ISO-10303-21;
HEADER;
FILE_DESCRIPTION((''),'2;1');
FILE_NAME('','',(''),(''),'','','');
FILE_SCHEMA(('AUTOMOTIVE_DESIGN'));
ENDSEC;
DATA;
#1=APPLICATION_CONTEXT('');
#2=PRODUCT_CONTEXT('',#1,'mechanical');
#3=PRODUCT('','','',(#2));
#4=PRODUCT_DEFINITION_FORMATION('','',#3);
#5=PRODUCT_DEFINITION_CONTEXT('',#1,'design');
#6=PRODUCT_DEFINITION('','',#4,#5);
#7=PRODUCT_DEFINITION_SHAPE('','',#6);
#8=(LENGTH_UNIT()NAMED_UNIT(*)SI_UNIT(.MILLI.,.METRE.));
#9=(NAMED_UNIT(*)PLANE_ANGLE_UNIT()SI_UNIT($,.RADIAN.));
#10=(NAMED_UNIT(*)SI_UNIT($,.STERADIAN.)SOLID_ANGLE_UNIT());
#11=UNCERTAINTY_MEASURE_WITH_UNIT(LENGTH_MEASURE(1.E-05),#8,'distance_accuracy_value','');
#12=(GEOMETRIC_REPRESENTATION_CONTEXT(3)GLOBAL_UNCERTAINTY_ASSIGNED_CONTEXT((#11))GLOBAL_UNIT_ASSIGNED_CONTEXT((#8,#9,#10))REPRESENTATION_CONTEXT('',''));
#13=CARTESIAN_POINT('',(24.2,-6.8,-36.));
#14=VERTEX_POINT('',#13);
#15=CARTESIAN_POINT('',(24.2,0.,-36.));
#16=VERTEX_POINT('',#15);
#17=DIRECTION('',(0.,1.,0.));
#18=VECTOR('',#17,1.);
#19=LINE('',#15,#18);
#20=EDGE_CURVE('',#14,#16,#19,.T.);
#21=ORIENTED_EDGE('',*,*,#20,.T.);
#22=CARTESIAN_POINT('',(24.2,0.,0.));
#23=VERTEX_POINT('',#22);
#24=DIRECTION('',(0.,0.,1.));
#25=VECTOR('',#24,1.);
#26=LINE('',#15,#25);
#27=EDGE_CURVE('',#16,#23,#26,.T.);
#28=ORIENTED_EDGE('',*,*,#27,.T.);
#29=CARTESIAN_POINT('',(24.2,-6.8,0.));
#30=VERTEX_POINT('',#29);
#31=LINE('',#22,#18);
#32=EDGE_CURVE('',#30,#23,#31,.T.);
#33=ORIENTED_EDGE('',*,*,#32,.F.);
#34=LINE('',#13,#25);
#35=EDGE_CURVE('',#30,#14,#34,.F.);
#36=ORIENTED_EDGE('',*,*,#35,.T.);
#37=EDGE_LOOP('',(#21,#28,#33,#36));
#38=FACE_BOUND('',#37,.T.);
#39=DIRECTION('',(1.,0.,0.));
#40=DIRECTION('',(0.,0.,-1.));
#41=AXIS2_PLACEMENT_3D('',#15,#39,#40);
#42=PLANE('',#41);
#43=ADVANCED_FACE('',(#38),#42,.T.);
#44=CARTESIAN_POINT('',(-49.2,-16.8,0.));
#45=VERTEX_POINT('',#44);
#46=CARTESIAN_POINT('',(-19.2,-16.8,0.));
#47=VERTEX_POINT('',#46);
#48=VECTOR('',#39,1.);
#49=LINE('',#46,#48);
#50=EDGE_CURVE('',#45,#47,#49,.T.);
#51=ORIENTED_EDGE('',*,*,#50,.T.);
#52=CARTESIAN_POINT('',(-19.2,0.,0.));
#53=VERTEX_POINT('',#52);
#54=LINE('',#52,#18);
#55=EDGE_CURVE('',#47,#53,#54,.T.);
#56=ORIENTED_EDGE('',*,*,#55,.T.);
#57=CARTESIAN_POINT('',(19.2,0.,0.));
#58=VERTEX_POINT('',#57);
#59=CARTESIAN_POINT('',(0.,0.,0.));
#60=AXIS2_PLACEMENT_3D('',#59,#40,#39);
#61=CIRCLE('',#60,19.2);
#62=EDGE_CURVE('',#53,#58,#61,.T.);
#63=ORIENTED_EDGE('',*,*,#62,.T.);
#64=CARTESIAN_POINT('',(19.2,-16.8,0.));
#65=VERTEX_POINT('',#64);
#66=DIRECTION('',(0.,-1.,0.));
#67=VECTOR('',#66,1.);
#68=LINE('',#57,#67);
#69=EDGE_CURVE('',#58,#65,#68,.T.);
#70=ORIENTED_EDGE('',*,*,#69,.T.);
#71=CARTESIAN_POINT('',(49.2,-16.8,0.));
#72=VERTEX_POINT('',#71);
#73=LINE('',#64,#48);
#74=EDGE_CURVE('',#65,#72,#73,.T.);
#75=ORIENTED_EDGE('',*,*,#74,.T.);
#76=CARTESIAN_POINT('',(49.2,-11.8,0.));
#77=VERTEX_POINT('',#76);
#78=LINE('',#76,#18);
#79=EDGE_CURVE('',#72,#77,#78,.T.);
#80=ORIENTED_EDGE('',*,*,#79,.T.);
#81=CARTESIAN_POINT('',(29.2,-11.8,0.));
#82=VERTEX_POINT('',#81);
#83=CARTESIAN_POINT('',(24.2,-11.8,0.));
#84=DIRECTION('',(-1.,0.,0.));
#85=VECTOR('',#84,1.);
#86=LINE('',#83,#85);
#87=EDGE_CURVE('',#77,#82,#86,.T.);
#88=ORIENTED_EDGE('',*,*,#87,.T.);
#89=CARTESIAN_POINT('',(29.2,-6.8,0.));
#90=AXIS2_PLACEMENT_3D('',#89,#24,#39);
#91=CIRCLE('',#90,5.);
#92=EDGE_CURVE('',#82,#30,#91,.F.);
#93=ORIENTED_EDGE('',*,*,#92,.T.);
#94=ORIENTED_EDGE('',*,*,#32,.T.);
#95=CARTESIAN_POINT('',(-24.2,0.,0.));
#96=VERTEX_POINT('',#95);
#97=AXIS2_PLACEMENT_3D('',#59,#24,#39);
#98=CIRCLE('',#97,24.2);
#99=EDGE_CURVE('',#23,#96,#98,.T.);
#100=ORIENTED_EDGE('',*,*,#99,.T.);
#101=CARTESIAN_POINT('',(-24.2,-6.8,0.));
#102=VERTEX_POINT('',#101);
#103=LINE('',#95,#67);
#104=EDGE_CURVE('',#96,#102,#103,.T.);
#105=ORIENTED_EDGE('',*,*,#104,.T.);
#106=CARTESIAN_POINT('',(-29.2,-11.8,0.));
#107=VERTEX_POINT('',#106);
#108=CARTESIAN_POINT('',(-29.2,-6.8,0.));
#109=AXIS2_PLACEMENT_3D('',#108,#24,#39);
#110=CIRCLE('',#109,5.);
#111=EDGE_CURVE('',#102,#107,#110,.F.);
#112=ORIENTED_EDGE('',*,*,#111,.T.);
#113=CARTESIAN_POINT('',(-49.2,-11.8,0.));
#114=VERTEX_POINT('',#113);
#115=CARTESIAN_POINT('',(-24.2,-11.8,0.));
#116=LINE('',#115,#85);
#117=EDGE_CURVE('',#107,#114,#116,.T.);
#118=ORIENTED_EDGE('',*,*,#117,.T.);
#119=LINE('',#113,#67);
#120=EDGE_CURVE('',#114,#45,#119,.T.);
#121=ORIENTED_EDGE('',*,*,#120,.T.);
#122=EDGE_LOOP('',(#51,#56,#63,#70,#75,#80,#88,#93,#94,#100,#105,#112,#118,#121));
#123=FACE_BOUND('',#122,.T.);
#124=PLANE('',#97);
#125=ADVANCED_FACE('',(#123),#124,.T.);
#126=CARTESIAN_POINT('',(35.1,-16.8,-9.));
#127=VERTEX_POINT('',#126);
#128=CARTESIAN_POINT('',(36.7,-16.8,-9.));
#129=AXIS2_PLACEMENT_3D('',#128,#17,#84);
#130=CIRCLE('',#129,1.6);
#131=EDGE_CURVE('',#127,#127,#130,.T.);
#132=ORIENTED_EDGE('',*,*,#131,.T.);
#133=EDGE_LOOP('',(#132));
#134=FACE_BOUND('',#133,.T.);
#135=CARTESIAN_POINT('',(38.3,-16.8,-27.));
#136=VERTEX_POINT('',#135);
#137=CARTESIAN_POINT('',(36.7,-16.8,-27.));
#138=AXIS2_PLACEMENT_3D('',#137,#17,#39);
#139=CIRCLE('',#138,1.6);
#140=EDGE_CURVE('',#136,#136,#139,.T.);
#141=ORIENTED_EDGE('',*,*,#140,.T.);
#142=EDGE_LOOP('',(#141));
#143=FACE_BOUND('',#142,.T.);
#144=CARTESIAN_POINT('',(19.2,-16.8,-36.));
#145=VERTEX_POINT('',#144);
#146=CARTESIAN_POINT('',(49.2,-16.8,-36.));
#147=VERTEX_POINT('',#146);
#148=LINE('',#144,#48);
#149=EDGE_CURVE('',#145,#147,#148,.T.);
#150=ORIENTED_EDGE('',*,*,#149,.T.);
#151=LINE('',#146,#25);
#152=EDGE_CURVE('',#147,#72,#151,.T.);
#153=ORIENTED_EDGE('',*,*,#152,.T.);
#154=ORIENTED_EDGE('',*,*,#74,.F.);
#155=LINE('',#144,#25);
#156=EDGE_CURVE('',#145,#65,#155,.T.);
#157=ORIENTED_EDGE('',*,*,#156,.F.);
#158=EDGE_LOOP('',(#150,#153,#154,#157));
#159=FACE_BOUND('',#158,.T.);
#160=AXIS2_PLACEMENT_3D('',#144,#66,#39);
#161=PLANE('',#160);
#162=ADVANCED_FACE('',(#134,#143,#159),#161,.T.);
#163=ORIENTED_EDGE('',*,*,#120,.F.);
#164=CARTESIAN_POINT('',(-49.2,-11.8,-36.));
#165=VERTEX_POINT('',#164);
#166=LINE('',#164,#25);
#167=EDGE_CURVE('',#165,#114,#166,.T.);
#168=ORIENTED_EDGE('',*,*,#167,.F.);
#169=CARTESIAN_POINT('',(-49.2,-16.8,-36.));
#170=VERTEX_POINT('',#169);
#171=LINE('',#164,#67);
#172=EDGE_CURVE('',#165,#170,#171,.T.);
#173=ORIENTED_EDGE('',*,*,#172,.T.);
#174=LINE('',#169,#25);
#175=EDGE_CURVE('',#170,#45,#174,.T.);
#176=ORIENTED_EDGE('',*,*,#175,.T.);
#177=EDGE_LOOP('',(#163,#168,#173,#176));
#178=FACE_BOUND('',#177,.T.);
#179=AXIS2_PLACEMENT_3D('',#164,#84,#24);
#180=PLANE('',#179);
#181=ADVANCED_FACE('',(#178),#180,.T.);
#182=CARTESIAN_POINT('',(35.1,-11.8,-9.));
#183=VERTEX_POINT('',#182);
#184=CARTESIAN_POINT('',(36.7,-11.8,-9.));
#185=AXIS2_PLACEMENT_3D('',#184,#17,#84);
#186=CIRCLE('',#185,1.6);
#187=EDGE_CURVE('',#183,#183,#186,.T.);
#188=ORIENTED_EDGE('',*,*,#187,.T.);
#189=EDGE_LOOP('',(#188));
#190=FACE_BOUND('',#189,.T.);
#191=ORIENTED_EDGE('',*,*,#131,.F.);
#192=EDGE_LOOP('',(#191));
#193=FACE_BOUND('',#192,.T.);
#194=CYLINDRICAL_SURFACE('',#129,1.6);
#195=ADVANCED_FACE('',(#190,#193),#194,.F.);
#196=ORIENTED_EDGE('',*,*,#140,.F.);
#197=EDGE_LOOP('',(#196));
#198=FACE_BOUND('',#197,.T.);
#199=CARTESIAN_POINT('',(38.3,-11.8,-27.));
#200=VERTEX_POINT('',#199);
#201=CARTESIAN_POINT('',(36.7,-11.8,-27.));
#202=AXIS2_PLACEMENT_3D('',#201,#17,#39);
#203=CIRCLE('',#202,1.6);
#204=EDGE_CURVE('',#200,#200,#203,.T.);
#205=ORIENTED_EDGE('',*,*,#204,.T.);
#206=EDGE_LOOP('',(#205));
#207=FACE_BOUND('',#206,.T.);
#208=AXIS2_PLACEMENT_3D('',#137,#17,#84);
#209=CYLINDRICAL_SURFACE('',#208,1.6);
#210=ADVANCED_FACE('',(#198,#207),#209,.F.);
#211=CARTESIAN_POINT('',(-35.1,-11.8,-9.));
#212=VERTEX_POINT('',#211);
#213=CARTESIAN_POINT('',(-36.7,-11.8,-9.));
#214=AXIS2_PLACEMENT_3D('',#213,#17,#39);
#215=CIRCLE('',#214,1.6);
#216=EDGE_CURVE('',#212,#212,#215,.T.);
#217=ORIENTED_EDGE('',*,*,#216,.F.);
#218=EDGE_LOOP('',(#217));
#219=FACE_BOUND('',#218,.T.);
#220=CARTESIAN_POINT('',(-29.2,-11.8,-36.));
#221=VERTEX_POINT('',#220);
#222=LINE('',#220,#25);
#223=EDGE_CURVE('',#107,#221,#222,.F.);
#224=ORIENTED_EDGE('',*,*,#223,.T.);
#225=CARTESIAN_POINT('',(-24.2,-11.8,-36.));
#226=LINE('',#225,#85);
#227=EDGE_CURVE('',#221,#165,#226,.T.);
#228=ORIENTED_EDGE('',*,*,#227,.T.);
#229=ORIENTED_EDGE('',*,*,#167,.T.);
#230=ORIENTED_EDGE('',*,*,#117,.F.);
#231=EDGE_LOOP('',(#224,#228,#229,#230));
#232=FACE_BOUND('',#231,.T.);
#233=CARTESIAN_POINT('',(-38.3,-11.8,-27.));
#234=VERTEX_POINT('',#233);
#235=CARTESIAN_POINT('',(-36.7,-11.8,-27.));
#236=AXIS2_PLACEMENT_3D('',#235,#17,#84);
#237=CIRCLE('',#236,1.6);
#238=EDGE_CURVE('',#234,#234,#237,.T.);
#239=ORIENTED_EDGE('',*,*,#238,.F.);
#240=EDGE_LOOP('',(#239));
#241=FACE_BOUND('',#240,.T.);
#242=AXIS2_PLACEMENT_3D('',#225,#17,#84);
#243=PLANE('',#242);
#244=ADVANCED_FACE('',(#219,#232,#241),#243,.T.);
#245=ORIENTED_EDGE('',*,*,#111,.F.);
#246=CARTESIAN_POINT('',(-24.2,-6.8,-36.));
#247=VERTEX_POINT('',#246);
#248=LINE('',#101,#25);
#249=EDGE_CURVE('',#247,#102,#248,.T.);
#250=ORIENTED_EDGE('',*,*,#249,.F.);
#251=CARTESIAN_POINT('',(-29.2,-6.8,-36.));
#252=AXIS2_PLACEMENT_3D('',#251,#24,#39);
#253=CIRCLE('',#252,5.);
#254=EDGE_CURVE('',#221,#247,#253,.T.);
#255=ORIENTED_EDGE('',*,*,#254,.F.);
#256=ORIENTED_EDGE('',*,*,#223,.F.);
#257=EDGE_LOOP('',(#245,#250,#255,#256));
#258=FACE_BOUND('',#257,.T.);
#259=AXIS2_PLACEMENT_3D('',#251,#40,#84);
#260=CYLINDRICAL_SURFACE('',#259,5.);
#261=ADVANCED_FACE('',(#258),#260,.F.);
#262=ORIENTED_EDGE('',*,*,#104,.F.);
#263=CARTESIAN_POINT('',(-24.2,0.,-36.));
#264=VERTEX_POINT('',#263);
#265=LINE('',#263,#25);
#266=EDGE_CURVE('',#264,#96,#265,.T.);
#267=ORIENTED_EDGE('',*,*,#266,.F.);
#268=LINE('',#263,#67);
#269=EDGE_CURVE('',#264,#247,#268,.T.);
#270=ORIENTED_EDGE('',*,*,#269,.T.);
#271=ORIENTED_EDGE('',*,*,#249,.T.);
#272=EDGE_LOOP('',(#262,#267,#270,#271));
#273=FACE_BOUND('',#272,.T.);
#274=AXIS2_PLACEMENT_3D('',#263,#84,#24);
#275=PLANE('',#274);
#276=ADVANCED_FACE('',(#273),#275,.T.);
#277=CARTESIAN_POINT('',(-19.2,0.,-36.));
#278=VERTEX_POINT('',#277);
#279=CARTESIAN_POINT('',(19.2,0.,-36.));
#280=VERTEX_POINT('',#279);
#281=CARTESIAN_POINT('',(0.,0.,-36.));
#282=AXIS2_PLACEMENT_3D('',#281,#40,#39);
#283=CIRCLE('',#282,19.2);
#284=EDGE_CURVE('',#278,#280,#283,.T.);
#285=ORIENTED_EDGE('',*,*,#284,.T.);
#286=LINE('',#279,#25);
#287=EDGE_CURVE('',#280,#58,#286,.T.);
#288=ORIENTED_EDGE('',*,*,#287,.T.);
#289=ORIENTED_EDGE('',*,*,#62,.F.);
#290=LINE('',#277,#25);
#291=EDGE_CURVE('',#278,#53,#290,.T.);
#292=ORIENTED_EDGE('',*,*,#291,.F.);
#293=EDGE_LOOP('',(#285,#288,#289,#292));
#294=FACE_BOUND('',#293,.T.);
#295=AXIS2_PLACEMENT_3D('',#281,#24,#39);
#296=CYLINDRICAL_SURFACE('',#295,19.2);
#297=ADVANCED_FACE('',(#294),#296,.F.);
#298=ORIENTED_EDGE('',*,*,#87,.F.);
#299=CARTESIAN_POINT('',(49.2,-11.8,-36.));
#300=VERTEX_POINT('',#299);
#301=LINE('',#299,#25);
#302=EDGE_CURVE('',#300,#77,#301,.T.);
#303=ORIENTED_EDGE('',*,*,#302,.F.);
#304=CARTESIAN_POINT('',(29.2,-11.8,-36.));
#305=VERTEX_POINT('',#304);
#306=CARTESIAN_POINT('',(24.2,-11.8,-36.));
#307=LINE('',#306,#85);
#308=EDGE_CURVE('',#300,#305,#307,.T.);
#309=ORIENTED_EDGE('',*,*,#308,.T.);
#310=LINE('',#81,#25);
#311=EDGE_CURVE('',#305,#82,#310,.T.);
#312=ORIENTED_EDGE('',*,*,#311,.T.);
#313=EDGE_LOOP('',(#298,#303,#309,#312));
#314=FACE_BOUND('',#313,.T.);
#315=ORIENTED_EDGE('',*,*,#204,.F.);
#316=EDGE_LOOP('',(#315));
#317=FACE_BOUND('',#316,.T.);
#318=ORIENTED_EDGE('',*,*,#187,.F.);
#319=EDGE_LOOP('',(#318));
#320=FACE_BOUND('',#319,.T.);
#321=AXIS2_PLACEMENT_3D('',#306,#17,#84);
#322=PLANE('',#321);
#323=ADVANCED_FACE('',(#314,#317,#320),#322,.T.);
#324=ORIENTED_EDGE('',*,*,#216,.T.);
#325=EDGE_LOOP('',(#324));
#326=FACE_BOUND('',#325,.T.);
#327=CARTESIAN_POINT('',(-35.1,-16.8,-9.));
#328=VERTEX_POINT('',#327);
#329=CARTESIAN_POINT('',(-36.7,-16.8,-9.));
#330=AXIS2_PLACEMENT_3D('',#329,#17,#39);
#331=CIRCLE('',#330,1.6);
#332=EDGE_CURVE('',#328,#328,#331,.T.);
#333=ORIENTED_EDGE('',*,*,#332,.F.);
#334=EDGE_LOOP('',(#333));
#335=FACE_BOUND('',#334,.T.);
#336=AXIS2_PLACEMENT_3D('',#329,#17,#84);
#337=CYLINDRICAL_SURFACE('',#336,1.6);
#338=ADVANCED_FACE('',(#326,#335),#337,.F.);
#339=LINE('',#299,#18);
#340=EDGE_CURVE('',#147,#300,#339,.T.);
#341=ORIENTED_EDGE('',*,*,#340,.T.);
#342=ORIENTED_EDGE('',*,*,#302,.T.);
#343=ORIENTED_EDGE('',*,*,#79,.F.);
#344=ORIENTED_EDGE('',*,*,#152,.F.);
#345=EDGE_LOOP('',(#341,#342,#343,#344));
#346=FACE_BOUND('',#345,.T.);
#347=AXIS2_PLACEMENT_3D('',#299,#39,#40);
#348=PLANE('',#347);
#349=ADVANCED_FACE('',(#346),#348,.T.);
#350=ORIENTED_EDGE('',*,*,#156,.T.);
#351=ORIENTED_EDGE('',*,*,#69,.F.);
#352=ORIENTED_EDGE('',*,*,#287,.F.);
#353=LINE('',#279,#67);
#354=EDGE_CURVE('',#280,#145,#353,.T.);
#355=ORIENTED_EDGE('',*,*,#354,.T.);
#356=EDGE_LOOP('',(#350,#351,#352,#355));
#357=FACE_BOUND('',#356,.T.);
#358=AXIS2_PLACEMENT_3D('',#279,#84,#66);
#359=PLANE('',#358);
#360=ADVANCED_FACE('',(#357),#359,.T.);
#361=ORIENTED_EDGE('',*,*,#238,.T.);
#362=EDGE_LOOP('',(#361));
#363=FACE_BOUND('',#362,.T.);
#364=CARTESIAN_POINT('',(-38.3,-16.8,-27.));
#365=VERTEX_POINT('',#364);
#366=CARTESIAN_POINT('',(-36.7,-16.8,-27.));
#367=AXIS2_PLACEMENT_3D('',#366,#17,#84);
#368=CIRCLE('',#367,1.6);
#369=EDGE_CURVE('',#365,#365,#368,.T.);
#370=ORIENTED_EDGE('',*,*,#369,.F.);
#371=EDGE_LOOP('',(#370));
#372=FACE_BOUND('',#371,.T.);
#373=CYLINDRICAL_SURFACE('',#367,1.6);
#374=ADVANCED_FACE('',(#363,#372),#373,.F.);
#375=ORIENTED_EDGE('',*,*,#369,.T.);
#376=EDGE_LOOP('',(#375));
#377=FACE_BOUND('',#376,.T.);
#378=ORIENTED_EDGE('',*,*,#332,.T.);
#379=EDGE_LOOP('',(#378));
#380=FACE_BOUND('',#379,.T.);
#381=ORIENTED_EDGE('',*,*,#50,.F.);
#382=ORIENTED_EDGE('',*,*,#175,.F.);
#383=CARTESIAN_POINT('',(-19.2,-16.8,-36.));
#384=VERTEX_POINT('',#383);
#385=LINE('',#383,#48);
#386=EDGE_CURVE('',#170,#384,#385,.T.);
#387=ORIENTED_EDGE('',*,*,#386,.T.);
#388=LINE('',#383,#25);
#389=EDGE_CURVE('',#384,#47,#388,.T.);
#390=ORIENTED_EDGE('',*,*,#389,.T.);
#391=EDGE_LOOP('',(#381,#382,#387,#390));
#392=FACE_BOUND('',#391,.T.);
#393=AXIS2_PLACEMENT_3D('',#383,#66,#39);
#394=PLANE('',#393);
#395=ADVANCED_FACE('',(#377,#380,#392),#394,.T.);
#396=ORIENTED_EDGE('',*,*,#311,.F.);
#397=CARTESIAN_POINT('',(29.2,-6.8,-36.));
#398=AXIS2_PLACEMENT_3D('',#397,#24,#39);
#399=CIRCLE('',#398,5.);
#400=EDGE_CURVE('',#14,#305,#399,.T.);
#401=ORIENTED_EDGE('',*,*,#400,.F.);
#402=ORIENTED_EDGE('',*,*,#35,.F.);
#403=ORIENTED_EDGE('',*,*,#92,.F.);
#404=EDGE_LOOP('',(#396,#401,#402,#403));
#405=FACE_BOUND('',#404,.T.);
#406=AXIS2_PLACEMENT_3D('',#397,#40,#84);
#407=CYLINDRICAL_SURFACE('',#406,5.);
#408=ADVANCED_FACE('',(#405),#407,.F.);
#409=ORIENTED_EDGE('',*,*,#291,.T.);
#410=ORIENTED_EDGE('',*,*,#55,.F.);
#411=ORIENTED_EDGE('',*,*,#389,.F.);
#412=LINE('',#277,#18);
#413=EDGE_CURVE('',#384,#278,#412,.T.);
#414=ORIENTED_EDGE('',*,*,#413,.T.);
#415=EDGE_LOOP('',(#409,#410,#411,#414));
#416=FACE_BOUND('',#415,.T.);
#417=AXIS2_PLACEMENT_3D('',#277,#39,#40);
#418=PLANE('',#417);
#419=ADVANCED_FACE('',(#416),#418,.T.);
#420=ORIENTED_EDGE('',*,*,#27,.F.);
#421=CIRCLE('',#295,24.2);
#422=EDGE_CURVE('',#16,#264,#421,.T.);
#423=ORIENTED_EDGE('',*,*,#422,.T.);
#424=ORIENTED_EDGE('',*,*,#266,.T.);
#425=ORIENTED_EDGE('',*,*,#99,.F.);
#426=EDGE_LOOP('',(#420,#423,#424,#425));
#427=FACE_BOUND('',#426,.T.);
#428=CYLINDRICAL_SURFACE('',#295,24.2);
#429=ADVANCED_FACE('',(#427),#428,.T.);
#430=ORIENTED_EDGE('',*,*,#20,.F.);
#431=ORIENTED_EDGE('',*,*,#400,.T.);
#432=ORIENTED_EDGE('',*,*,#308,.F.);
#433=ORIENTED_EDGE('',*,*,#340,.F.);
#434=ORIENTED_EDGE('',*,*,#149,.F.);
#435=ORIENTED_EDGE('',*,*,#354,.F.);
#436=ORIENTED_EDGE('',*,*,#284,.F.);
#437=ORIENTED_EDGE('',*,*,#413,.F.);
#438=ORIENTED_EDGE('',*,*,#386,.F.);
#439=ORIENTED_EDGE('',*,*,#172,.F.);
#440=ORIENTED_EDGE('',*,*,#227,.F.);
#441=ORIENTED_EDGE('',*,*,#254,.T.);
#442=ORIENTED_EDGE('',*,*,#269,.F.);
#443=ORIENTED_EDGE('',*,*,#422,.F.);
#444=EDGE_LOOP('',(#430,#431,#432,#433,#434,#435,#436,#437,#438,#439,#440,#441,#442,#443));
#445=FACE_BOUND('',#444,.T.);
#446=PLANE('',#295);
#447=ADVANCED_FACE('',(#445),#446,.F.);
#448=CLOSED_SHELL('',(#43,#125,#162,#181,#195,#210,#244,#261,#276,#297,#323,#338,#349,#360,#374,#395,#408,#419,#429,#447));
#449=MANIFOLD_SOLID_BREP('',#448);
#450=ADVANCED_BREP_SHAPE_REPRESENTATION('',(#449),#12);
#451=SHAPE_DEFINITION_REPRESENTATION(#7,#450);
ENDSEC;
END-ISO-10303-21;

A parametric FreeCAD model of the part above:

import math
import FreeCAD as App
import Part
import Sketcher

V = App.Vector
Q = App.Units.Quantity


def edges_at(feature, points):
    """Names of the edges that pass closest to the given points."""
    edges = feature.Shape.Edges
    near = lambda p: min(range(len(edges)), key=lambda i: edges[i].distToShape(Part.Vertex(*p))[0])
    return sorted({f"Edge{near(p) + 1}" for p in points})

doc = App.newDocument("Part")
body = doc.addObject("PartDesign::Body", "Body")

sketch1 = doc.addObject("Sketcher::SketchObject", "Sketch")
body.addObject(sketch1)
sketch1.AttachmentSupport = (doc.XY_Plane, [""])
sketch1.MapMode = "FlatFace"
sketch1.addGeometry([
    Part.LineSegment(V(-19, -17, 0), V(-19, 0, 0)),
    Part.ArcOfCircle(Part.Circle(V(0, 0, 0), V(0, 0, 1), 19), math.radians(0), math.radians(180)),
    Part.LineSegment(V(19, 0, 0), V(19, -17, 0)),
    Part.LineSegment(V(19, -17, 0), V(49, -17, 0)),
    Part.LineSegment(V(49, -17, 0), V(49, -12, 0)),
    Part.LineSegment(V(49, -12, 0), V(24, -12, 0)),
    Part.LineSegment(V(24, -12, 0), V(24, 0, 0)),
    Part.ArcOfCircle(Part.Circle(V(0, 0, 0), V(0, 0, 1), 24), math.radians(0), math.radians(180)),
    Part.LineSegment(V(-24, 0, 0), V(-24, -12, 0)),
    Part.LineSegment(V(-24, -12, 0), V(-49, -12, 0)),
    Part.LineSegment(V(-49, -12, 0), V(-49, -17, 0)),
    Part.LineSegment(V(-49, -17, 0), V(-19, -17, 0)),
], False)
sketch1.addConstraint([
    Sketcher.Constraint("Tangent", 0, 2, 1, 2),
    Sketcher.Constraint("Tangent", 1, 1, 2, 1),
    Sketcher.Constraint("Coincident", 2, 2, 3, 1),
    Sketcher.Constraint("Coincident", 3, 2, 4, 1),
    Sketcher.Constraint("Coincident", 4, 2, 5, 1),
    Sketcher.Constraint("Coincident", 5, 2, 6, 1),
    Sketcher.Constraint("Tangent", 6, 2, 7, 1),
    Sketcher.Constraint("Tangent", 7, 2, 8, 1),
    Sketcher.Constraint("Coincident", 8, 2, 9, 1),
    Sketcher.Constraint("Coincident", 9, 2, 10, 1),
    Sketcher.Constraint("Coincident", 10, 2, 11, 1),
    Sketcher.Constraint("Coincident", 11, 2, 0, 1),
    Sketcher.Constraint("Vertical", 0),
    Sketcher.Constraint("Vertical", 2),
    Sketcher.Constraint("Horizontal", 3),
    Sketcher.Constraint("Vertical", 4),
    Sketcher.Constraint("Horizontal", 5),
    Sketcher.Constraint("Vertical", 6),
    Sketcher.Constraint("Vertical", 8),
    Sketcher.Constraint("Horizontal", 9),
    Sketcher.Constraint("Vertical", 10),
    Sketcher.Constraint("Horizontal", 11),
    Sketcher.Constraint("Coincident", 1, 3, -1, 1),
    Sketcher.Constraint("Coincident", 7, 3, -1, 1),
    Sketcher.Constraint("Symmetric", 4, 2, 9, 2, -2),
    Sketcher.Constraint("Horizontal", 3, 2, 10, 2),
    Sketcher.Constraint("Radius", 1, Q("19.2 mm")),
    Sketcher.Constraint("Radius", 7, Q("24.2 mm")),
    Sketcher.Constraint("DistanceX", 3, 1, 3, 2, Q("30 mm")),
    Sketcher.Constraint("DistanceY", 4, 1, 4, 2, Q("5 mm")),
    Sketcher.Constraint("DistanceY", 0, 1, 0, 2, Q("16.8 mm")),
])
pad1 = doc.addObject("PartDesign::Pad", "Pad")
body.addObject(pad1)
pad1.Profile = sketch1
pad1.Length = 36
pad1.Reversed = True

sketch2 = doc.addObject("Sketcher::SketchObject", "Sketch001")
body.addObject(sketch2)
sketch2.AttachmentSupport = (doc.XZ_Plane, [""])
sketch2.MapMode = "FlatFace"
sketch2.AttachmentOffset = App.Placement(V(0, 0, 11.8), App.Rotation())
sketch2.addGeometry([
    Part.Circle(V(-36.7, -27, 0), V(0, 0, 1), 1.6),
    Part.Circle(V(-36.7, -9, 0), V(0, 0, 1), 1.6),
    Part.Circle(V(36.7, -27, 0), V(0, 0, 1), 1.6),
    Part.Circle(V(36.7, -9, 0), V(0, 0, 1), 1.6),
], False)
sketch2.addConstraint([
    Sketcher.Constraint("Equal", 0, 1),
    Sketcher.Constraint("Equal", 1, 2),
    Sketcher.Constraint("Equal", 2, 3),
    Sketcher.Constraint("Symmetric", 0, 3, 2, 3, -2),
    Sketcher.Constraint("Symmetric", 1, 3, 3, 3, -2),
    Sketcher.Constraint("Vertical", 0, 3, 1, 3),
    Sketcher.Constraint("Diameter", 0, Q("3.2 mm")),
    Sketcher.Constraint("DistanceY", 0, 3, -1, 1, Q("27 mm")),
    Sketcher.Constraint("DistanceY", 1, 3, -1, 1, Q("9 mm")),
    Sketcher.Constraint("DistanceX", 0, 3, -1, 1, Q("36.7 mm")),
])
pocket1 = doc.addObject("PartDesign::Pocket", "Pocket")
body.addObject(pocket1)
pocket1.Profile = sketch2
pocket1.Length = 5
pocket1.Reversed = True
doc.recompute()

fillet = doc.addObject("PartDesign::Fillet", "Fillet")
body.addObject(fillet)
fillet.Base = (pocket1, edges_at(pocket1, [(24.2, -11.8, -18), (-24.2, -11.8, -18)]))
fillet.Radius = 5

doc.recompute()
